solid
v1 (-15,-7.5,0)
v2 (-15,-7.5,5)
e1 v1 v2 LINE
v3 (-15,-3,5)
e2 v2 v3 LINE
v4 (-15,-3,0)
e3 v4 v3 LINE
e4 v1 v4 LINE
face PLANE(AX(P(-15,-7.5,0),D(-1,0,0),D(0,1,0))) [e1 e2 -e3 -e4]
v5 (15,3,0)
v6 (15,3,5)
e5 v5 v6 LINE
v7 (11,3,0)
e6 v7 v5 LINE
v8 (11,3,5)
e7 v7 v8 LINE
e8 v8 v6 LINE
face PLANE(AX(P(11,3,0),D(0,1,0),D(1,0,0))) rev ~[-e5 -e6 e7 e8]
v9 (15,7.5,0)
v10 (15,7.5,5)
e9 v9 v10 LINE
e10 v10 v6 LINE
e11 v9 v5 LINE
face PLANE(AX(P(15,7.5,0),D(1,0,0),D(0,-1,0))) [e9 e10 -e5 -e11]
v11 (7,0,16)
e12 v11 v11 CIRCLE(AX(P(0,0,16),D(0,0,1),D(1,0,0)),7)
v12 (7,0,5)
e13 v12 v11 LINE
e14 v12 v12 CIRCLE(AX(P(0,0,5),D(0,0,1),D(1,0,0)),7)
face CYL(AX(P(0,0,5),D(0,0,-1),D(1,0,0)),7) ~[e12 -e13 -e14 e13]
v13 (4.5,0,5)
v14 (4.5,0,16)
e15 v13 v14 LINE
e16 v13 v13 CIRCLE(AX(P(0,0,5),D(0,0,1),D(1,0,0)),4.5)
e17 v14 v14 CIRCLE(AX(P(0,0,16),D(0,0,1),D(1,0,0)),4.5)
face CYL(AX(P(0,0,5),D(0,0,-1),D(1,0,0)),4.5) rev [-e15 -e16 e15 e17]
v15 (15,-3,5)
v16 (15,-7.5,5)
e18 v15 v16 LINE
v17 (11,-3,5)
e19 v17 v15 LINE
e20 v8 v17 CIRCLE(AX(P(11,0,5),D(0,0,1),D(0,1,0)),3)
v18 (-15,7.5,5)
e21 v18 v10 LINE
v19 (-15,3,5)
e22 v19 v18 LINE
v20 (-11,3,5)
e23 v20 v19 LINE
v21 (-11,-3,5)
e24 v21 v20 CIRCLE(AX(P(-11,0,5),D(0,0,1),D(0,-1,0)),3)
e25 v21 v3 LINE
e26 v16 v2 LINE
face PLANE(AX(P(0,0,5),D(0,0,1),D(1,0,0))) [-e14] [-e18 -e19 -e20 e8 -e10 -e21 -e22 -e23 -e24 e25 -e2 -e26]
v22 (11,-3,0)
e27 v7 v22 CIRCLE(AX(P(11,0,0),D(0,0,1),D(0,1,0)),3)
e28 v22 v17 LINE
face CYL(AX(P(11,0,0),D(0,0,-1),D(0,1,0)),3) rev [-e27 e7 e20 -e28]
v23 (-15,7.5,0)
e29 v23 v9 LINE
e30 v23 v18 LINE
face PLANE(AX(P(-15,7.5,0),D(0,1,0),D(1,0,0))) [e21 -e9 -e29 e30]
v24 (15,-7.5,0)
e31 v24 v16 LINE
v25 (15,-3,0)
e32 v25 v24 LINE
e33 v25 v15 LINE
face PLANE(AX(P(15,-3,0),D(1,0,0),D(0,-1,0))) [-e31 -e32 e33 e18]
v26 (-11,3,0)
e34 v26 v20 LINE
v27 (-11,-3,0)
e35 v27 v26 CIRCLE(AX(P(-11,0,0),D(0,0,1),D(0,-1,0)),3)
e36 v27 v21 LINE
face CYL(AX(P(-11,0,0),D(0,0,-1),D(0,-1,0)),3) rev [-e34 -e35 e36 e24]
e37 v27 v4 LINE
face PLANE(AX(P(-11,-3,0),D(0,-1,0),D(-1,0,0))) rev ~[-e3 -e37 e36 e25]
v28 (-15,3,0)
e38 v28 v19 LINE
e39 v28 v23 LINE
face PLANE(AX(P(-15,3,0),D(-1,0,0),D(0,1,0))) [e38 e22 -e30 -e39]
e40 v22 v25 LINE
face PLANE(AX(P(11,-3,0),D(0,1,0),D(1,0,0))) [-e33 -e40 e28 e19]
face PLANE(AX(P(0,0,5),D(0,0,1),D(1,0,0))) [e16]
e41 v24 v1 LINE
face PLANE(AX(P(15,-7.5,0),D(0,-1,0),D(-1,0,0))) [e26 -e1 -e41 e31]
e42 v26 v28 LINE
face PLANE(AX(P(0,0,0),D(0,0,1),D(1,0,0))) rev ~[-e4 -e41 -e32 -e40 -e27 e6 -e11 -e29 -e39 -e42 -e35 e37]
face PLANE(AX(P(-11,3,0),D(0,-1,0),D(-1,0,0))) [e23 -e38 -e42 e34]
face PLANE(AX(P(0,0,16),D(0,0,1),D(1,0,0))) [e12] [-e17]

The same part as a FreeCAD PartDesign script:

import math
import FreeCAD as App
import Part
import Sketcher
Q = App.Units.Quantity

doc = App.newDocument("Part")
body = doc.addObject("PartDesign::Body", "Body")

# Sketch on XY plane
sketch1 = doc.addObject("Sketcher::SketchObject", "Sketch")
body.addObject(sketch1)
sketch1.AttachmentSupport = (doc.XY_Plane, [""])
sketch1.MapMode = "FlatFace"
sketch1.addGeometry([
    Part.LineSegment(App.Vector(15, 7.5, 0), App.Vector(-15, 7.5, 0)),  # 0
    Part.LineSegment(App.Vector(-15, 7.5, 0), App.Vector(-15, 3, 0)),  # 1
    Part.LineSegment(App.Vector(-15, 3, 0), App.Vector(-11, 3, 0)),  # 2
    Part.ArcOfCircle(Part.Circle(App.Vector(-11, 0, 0), App.Vector(0, 0, 1), 3), math.radians(-90), math.radians(90)),  # 3
    Part.LineSegment(App.Vector(-11, -3, 0), App.Vector(-15, -3, 0)),  # 4
    Part.LineSegment(App.Vector(-15, -3, 0), App.Vector(-15, -7.5, 0)),  # 5
    Part.LineSegment(App.Vector(-15, -7.5, 0), App.Vector(15, -7.5, 0)),  # 6
    Part.LineSegment(App.Vector(15, -7.5, 0), App.Vector(15, -3, 0)),  # 7
    Part.LineSegment(App.Vector(15, -3, 0), App.Vector(11, -3, 0)),  # 8
    Part.ArcOfCircle(Part.Circle(App.Vector(11, 0, 0), App.Vector(0, 0, 1), 3), math.radians(90), math.radians(270)),  # 9
    Part.LineSegment(App.Vector(11, 3, 0), App.Vector(15, 3, 0)),  # 10
    Part.LineSegment(App.Vector(15, 3, 0), App.Vector(15, 7.5, 0)),  # 11
], False)
sketch1.addConstraint([
    Sketcher.Constraint("Coincident", 0, 2, 1, 1),
    Sketcher.Constraint("Coincident", 1, 2, 2, 1),
    Sketcher.Constraint("Tangent", 2, 2, 3, 2),
    Sketcher.Constraint("Tangent", 3, 1, 4, 1),
    Sketcher.Constraint("Coincident", 4, 2, 5, 1),
    Sketcher.Constraint("Coincident", 5, 2, 6, 1),
    Sketcher.Constraint("Coincident", 6, 2, 7, 1),
    Sketcher.Constraint("Coincident", 7, 2, 8, 1),
    Sketcher.Constraint("Tangent", 8, 2, 9, 2),
    Sketcher.Constraint("Tangent", 9, 1, 10, 1),
    Sketcher.Constraint("Coincident", 10, 2, 11, 1),
    Sketcher.Constraint("Coincident", 11, 2, 0, 1),
    Sketcher.Constraint("Horizontal", 0),
    Sketcher.Constraint("Vertical", 1),
    Sketcher.Constraint("Horizontal", 2),
    Sketcher.Constraint("Horizontal", 4),
    Sketcher.Constraint("Vertical", 5),
    Sketcher.Constraint("Horizontal", 6),
    Sketcher.Constraint("Vertical", 7),
    Sketcher.Constraint("Horizontal", 8),
    Sketcher.Constraint("Horizontal", 10),
    Sketcher.Constraint("Vertical", 11),
    Sketcher.Constraint("Equal", 3, 9),
    Sketcher.Constraint("Symmetric", 3, 3, 9, 3, -1, 1),
    Sketcher.Constraint("Symmetric", 0, 2, 6, 2, -1, 1),
    Sketcher.Constraint("Symmetric", 4, 2, 7, 2, -2),
    Sketcher.Constraint("Vertical", 7, 2, 10, 2),
    Sketcher.Constraint("Radius", 3, Q("3 mm")),
    Sketcher.Constraint("DistanceX", 0, 2, 0, 1, Q("30 mm")),
    Sketcher.Constraint("DistanceX", 2, 1, 2, 2, Q("4 mm")),
    Sketcher.Constraint("DistanceY", 1, 2, 1, 1, Q("4.5 mm")),
])
pad1 = doc.addObject("PartDesign::Pad", "Pad")
body.addObject(pad1)
pad1.Profile = sketch1
pad1.Length = 5

# Sketch on XY plane
sketch2 = doc.addObject("Sketcher::SketchObject", "Sketch001")
body.addObject(sketch2)
sketch2.AttachmentSupport = (doc.XY_Plane, [""])
sketch2.MapMode = "FlatFace"
sketch2.AttachmentOffset = App.Placement(App.Vector(0, 0, 5), App.Rotation())
sketch2.addGeometry([
    Part.Circle(App.Vector(0, 0, 0), App.Vector(0, 0, 1), 7),
    Part.Circle(App.Vector(0, 0, 0), App.Vector(0, 0, 1), 4.5),
], False)
sketch2.addConstraint([
    Sketcher.Constraint("Coincident", 0, 3, -1, 1),
    Sketcher.Constraint("Coincident", 1, 3, -1, 1),
    Sketcher.Constraint("Diameter", 0, Q("14 mm")),
    Sketcher.Constraint("Diameter", 1, Q("9 mm")),
])
pad2 = doc.addObject("PartDesign::Pad", "Pad001")
body.addObject(pad2)
pad2.Profile = sketch2
pad2.Length = 11

doc.recompute()
